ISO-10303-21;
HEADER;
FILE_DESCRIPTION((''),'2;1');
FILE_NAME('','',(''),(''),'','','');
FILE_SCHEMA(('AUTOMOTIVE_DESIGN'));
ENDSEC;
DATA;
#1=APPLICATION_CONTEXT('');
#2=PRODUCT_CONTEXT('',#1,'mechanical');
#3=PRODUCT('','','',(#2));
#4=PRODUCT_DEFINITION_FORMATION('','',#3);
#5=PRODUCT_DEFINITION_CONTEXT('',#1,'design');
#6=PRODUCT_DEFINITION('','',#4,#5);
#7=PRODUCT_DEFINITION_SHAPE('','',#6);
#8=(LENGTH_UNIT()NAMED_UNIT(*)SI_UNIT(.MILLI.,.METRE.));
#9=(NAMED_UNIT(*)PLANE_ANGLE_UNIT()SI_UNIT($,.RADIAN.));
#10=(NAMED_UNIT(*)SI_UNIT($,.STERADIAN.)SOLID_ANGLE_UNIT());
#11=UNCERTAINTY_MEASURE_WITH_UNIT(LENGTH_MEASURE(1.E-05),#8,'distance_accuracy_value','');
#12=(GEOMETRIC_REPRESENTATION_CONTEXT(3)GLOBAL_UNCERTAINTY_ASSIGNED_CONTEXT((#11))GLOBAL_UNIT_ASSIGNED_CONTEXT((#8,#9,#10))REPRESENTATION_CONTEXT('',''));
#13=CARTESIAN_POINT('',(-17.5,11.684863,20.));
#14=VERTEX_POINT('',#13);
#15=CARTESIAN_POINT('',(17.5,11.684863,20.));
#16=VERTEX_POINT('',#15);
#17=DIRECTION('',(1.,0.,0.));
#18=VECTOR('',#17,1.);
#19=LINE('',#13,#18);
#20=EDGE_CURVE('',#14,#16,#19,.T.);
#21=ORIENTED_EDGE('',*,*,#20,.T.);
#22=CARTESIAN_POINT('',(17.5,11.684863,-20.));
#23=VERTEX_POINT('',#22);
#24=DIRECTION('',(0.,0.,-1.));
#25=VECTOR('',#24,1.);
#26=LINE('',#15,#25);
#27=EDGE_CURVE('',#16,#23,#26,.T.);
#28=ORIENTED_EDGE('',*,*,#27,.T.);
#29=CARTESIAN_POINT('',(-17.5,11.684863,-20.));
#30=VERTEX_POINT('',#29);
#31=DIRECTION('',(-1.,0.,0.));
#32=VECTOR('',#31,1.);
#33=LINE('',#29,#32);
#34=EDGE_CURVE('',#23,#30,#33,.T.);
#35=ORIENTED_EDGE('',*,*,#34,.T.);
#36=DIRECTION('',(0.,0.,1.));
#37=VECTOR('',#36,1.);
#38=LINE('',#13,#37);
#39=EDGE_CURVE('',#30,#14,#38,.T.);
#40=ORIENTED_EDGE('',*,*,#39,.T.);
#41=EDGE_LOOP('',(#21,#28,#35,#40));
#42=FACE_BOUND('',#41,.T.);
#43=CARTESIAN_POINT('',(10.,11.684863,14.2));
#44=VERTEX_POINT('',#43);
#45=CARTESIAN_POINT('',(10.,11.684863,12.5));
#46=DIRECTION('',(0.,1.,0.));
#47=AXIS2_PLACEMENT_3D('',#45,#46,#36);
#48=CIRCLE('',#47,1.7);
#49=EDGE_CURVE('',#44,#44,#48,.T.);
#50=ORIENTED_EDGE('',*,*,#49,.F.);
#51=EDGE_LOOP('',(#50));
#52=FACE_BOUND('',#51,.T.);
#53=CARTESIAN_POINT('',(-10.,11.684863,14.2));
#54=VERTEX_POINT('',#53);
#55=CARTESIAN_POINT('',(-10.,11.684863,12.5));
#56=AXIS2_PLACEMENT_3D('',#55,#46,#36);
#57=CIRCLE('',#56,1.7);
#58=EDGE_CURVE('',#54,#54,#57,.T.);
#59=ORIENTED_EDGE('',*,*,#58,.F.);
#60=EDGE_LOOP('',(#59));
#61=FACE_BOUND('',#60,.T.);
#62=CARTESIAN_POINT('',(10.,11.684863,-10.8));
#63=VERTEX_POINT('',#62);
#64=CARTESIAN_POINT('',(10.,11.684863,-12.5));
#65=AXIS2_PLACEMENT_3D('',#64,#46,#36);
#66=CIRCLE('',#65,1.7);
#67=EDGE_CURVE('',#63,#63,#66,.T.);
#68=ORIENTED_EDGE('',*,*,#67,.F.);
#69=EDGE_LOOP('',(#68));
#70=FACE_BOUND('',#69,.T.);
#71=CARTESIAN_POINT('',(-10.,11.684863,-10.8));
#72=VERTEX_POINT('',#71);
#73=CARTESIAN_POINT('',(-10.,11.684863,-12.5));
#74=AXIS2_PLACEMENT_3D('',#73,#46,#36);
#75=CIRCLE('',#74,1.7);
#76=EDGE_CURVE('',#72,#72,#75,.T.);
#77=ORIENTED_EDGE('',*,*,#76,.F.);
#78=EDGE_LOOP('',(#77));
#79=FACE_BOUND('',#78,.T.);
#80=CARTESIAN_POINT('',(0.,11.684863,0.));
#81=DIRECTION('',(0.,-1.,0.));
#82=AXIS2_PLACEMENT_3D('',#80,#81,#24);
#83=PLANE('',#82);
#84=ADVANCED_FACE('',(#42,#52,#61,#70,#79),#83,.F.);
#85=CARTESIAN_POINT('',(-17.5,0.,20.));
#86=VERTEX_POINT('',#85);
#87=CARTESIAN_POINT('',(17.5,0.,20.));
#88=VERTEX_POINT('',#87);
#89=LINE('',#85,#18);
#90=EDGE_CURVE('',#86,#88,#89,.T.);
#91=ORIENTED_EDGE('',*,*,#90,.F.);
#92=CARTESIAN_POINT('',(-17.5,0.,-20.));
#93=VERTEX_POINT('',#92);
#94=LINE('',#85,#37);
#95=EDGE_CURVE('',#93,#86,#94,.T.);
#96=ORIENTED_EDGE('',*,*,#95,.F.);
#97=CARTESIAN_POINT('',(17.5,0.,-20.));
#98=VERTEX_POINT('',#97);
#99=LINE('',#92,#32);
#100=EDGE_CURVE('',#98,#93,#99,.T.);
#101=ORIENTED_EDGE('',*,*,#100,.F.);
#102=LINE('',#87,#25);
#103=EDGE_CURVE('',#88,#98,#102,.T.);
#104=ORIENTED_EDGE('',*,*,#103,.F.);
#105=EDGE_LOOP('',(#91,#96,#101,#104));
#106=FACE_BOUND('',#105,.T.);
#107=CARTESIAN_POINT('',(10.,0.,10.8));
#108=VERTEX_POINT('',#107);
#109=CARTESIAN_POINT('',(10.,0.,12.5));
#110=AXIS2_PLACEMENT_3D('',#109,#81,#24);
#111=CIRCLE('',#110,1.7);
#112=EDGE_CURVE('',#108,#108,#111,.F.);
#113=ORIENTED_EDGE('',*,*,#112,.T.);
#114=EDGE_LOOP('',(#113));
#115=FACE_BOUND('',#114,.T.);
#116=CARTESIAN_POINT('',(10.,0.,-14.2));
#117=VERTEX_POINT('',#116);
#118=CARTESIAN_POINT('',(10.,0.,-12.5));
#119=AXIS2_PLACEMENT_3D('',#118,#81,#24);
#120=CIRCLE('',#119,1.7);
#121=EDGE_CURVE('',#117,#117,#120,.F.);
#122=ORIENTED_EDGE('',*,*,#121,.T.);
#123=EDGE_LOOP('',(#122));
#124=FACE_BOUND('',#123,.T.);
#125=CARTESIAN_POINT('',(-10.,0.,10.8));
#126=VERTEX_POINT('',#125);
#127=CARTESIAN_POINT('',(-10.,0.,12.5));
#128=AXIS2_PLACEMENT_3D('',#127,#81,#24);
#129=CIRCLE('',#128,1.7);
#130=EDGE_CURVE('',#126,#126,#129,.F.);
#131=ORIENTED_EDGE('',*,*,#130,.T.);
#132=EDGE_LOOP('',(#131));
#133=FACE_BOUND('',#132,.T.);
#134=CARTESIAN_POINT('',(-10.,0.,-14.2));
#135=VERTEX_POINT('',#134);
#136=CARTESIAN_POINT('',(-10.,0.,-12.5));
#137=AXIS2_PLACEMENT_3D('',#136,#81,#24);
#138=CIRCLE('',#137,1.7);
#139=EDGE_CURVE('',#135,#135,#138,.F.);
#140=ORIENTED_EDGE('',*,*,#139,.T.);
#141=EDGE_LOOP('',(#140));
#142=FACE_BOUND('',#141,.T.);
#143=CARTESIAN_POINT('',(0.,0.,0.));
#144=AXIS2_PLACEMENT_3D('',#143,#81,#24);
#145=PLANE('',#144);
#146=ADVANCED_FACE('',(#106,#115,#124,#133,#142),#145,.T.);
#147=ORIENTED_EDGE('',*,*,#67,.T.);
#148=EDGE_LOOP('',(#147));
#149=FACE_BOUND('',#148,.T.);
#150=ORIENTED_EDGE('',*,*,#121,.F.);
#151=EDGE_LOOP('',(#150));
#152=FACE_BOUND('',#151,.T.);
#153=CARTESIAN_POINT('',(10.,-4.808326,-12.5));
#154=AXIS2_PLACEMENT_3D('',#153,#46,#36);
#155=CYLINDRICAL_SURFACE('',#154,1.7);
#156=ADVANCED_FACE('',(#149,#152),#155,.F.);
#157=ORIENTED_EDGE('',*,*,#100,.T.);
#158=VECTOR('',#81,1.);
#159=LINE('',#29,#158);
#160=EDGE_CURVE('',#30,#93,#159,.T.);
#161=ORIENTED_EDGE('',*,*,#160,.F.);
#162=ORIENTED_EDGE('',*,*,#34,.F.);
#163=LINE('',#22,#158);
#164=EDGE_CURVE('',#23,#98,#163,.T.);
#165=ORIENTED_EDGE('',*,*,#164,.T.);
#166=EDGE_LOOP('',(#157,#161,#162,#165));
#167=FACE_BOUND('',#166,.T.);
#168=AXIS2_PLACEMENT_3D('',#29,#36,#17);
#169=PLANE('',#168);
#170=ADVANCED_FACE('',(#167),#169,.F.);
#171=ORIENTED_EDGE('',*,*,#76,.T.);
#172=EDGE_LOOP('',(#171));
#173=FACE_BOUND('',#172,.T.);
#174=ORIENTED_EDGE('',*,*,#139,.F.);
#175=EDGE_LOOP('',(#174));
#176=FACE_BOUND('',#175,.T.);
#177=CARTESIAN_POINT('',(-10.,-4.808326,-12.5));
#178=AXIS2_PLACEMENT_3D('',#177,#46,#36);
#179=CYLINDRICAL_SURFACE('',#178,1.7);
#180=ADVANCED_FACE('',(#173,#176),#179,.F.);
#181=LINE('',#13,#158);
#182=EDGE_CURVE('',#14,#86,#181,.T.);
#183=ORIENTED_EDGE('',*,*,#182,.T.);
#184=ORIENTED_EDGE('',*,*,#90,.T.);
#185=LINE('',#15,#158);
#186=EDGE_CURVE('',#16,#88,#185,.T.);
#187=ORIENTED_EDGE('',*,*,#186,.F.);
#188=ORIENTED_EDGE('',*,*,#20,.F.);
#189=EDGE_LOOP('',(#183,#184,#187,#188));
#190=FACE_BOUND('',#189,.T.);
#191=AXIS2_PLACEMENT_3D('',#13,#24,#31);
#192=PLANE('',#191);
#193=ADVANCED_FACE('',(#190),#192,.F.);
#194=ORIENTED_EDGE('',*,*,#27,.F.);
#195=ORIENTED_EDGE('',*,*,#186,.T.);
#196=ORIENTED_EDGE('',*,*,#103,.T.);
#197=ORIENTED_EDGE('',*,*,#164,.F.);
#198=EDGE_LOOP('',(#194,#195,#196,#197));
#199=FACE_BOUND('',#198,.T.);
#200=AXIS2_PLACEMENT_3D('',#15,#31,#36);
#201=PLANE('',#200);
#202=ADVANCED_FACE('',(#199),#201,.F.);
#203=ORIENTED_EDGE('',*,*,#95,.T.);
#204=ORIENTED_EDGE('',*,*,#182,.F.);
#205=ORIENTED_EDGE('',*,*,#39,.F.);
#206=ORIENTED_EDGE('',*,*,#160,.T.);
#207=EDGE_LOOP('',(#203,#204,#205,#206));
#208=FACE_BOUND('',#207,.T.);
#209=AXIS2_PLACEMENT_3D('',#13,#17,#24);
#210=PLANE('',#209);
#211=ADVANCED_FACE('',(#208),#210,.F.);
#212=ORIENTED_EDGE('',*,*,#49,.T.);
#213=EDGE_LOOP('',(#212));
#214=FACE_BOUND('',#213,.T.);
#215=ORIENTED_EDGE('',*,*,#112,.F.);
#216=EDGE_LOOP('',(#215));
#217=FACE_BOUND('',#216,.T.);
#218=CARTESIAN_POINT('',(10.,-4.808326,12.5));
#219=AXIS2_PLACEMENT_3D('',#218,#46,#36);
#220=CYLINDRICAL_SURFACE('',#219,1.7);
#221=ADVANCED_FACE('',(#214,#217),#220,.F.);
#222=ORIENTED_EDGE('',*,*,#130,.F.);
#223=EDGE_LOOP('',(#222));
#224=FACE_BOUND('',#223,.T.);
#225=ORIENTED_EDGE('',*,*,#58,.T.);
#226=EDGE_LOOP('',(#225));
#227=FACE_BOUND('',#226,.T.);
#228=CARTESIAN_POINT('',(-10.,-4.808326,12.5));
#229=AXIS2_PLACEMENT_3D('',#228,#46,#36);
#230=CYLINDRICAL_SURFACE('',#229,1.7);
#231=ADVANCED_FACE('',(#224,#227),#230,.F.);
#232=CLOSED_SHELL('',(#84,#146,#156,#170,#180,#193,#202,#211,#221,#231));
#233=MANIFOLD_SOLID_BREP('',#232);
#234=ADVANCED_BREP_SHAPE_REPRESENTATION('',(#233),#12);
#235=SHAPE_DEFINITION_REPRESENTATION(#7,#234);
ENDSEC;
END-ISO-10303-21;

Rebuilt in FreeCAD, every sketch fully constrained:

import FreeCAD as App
import Part
import Sketcher
from FreeCAD import Vector


def add_polygon(sketch, points):
    """Adds a closed chain of lines whose ends are joined by coincident constraints."""
    first, n = sketch.GeometryCount, len(points)
    for a, b in zip(points, points[1:] + points[:1]):
        sketch.addGeometry(Part.LineSegment(App.Vector(*a, 0), App.Vector(*b, 0)), False)
    for i in range(n):
        sketch.addConstraint(Sketcher.Constraint("Coincident", first + i, 2, first + (i + 1) % n, 1))

doc = App.newDocument("Part")
params = doc.addObject("Spreadsheet::Sheet", "Params")
for row, (alias, value) in enumerate([
    ("sketch1_width", "35 mm"),
    ("sketch1_height", "40 mm"),
    ("pad1_length", "11.684863 mm"),
    ("sketch2_diameter", "3.4 mm"),
    ("pocket1_length", "11.684863 mm"),
], start=1):
    params.set(f"A{row}", alias)
    params.set(f"B{row}", "=" + value)
    params.setAlias(f"B{row}", alias)

body = doc.addObject("PartDesign::Body", "Body")

sketch1 = body.newObject("Sketcher::SketchObject", "Sketch")
sketch1.AttachmentSupport = (doc.getObject("XZ_Plane"), [""])
sketch1.MapMode = "FlatFace"
add_polygon(sketch1, [(-18, -20), (-18, 20), (18, 20), (18, -20)])
sketch1.addConstraint([
    Sketcher.Constraint("Vertical", 0),
    Sketcher.Constraint("Horizontal", 1),
    Sketcher.Constraint("Vertical", 2),
    Sketcher.Constraint("Horizontal", 3),
    Sketcher.Constraint("Symmetric", 0, 2, 2, 2, -1, 1),
    Sketcher.Constraint("DistanceX", 1, 1, 1, 2, 35.0),
    Sketcher.Constraint("DistanceY", 0, 1, 0, 2, 40.0),
])
sketch1.setExpression("Constraints[9]", "Params.sketch1_width")
sketch1.setExpression("Constraints[10]", "Params.sketch1_height")
pad1 = body.newObject("PartDesign::Pad", "Pad")
pad1.Profile = sketch1
pad1.setExpression("Length", "Params.pad1_length")
pad1.Reversed = True

sketch2 = body.newObject("Sketcher::SketchObject", "Sketch001")
sketch2.AttachmentSupport = (doc.getObject("XZ_Plane"), [""])
sketch2.MapMode = "FlatFace"
sketch2.AttachmentOffset = App.Placement(Vector(0, 0, -11.684863), App.Rotation())
sketch2.addGeometry([
    Part.Circle(Vector(-10, -12.5, 0), Vector(0, 0, 1), 1.7),
    Part.Circle(Vector(10, -12.5, 0), Vector(0, 0, 1), 1.7),
    Part.Circle(Vector(-10, 12.5, 0), Vector(0, 0, 1), 1.7),
    Part.Circle(Vector(10, 12.5, 0), Vector(0, 0, 1), 1.7),
], False)
sketch2.addConstraint([
    Sketcher.Constraint("Equal", 0, 1),
    Sketcher.Constraint("Equal", 1, 2),
    Sketcher.Constraint("Equal", 2, 3),
    Sketcher.Constraint("Symmetric", 1, 3, 2, 3, -1, 1),
    Sketcher.Constraint("Symmetric", 0, 3, 3, 3, -1, 1),
    Sketcher.Constraint("Symmetric", 0, 3, 1, 3, -2),
    Sketcher.Constraint("Diameter", 0, 3.4),
    Sketcher.Constraint("DistanceX", 0, 3, -1, 1, 10.0),
    Sketcher.Constraint("DistanceY", 0, 3, 2, 3, 25.0),
])
sketch2.setExpression("Constraints[6]", "Params.sketch2_diameter")
pocket1 = body.newObject("PartDesign::Pocket", "Pocket")
pocket1.Profile = sketch2
pocket1.setExpression("Length", "Params.pocket1_length")
pocket1.Reversed = True

doc.recompute()
